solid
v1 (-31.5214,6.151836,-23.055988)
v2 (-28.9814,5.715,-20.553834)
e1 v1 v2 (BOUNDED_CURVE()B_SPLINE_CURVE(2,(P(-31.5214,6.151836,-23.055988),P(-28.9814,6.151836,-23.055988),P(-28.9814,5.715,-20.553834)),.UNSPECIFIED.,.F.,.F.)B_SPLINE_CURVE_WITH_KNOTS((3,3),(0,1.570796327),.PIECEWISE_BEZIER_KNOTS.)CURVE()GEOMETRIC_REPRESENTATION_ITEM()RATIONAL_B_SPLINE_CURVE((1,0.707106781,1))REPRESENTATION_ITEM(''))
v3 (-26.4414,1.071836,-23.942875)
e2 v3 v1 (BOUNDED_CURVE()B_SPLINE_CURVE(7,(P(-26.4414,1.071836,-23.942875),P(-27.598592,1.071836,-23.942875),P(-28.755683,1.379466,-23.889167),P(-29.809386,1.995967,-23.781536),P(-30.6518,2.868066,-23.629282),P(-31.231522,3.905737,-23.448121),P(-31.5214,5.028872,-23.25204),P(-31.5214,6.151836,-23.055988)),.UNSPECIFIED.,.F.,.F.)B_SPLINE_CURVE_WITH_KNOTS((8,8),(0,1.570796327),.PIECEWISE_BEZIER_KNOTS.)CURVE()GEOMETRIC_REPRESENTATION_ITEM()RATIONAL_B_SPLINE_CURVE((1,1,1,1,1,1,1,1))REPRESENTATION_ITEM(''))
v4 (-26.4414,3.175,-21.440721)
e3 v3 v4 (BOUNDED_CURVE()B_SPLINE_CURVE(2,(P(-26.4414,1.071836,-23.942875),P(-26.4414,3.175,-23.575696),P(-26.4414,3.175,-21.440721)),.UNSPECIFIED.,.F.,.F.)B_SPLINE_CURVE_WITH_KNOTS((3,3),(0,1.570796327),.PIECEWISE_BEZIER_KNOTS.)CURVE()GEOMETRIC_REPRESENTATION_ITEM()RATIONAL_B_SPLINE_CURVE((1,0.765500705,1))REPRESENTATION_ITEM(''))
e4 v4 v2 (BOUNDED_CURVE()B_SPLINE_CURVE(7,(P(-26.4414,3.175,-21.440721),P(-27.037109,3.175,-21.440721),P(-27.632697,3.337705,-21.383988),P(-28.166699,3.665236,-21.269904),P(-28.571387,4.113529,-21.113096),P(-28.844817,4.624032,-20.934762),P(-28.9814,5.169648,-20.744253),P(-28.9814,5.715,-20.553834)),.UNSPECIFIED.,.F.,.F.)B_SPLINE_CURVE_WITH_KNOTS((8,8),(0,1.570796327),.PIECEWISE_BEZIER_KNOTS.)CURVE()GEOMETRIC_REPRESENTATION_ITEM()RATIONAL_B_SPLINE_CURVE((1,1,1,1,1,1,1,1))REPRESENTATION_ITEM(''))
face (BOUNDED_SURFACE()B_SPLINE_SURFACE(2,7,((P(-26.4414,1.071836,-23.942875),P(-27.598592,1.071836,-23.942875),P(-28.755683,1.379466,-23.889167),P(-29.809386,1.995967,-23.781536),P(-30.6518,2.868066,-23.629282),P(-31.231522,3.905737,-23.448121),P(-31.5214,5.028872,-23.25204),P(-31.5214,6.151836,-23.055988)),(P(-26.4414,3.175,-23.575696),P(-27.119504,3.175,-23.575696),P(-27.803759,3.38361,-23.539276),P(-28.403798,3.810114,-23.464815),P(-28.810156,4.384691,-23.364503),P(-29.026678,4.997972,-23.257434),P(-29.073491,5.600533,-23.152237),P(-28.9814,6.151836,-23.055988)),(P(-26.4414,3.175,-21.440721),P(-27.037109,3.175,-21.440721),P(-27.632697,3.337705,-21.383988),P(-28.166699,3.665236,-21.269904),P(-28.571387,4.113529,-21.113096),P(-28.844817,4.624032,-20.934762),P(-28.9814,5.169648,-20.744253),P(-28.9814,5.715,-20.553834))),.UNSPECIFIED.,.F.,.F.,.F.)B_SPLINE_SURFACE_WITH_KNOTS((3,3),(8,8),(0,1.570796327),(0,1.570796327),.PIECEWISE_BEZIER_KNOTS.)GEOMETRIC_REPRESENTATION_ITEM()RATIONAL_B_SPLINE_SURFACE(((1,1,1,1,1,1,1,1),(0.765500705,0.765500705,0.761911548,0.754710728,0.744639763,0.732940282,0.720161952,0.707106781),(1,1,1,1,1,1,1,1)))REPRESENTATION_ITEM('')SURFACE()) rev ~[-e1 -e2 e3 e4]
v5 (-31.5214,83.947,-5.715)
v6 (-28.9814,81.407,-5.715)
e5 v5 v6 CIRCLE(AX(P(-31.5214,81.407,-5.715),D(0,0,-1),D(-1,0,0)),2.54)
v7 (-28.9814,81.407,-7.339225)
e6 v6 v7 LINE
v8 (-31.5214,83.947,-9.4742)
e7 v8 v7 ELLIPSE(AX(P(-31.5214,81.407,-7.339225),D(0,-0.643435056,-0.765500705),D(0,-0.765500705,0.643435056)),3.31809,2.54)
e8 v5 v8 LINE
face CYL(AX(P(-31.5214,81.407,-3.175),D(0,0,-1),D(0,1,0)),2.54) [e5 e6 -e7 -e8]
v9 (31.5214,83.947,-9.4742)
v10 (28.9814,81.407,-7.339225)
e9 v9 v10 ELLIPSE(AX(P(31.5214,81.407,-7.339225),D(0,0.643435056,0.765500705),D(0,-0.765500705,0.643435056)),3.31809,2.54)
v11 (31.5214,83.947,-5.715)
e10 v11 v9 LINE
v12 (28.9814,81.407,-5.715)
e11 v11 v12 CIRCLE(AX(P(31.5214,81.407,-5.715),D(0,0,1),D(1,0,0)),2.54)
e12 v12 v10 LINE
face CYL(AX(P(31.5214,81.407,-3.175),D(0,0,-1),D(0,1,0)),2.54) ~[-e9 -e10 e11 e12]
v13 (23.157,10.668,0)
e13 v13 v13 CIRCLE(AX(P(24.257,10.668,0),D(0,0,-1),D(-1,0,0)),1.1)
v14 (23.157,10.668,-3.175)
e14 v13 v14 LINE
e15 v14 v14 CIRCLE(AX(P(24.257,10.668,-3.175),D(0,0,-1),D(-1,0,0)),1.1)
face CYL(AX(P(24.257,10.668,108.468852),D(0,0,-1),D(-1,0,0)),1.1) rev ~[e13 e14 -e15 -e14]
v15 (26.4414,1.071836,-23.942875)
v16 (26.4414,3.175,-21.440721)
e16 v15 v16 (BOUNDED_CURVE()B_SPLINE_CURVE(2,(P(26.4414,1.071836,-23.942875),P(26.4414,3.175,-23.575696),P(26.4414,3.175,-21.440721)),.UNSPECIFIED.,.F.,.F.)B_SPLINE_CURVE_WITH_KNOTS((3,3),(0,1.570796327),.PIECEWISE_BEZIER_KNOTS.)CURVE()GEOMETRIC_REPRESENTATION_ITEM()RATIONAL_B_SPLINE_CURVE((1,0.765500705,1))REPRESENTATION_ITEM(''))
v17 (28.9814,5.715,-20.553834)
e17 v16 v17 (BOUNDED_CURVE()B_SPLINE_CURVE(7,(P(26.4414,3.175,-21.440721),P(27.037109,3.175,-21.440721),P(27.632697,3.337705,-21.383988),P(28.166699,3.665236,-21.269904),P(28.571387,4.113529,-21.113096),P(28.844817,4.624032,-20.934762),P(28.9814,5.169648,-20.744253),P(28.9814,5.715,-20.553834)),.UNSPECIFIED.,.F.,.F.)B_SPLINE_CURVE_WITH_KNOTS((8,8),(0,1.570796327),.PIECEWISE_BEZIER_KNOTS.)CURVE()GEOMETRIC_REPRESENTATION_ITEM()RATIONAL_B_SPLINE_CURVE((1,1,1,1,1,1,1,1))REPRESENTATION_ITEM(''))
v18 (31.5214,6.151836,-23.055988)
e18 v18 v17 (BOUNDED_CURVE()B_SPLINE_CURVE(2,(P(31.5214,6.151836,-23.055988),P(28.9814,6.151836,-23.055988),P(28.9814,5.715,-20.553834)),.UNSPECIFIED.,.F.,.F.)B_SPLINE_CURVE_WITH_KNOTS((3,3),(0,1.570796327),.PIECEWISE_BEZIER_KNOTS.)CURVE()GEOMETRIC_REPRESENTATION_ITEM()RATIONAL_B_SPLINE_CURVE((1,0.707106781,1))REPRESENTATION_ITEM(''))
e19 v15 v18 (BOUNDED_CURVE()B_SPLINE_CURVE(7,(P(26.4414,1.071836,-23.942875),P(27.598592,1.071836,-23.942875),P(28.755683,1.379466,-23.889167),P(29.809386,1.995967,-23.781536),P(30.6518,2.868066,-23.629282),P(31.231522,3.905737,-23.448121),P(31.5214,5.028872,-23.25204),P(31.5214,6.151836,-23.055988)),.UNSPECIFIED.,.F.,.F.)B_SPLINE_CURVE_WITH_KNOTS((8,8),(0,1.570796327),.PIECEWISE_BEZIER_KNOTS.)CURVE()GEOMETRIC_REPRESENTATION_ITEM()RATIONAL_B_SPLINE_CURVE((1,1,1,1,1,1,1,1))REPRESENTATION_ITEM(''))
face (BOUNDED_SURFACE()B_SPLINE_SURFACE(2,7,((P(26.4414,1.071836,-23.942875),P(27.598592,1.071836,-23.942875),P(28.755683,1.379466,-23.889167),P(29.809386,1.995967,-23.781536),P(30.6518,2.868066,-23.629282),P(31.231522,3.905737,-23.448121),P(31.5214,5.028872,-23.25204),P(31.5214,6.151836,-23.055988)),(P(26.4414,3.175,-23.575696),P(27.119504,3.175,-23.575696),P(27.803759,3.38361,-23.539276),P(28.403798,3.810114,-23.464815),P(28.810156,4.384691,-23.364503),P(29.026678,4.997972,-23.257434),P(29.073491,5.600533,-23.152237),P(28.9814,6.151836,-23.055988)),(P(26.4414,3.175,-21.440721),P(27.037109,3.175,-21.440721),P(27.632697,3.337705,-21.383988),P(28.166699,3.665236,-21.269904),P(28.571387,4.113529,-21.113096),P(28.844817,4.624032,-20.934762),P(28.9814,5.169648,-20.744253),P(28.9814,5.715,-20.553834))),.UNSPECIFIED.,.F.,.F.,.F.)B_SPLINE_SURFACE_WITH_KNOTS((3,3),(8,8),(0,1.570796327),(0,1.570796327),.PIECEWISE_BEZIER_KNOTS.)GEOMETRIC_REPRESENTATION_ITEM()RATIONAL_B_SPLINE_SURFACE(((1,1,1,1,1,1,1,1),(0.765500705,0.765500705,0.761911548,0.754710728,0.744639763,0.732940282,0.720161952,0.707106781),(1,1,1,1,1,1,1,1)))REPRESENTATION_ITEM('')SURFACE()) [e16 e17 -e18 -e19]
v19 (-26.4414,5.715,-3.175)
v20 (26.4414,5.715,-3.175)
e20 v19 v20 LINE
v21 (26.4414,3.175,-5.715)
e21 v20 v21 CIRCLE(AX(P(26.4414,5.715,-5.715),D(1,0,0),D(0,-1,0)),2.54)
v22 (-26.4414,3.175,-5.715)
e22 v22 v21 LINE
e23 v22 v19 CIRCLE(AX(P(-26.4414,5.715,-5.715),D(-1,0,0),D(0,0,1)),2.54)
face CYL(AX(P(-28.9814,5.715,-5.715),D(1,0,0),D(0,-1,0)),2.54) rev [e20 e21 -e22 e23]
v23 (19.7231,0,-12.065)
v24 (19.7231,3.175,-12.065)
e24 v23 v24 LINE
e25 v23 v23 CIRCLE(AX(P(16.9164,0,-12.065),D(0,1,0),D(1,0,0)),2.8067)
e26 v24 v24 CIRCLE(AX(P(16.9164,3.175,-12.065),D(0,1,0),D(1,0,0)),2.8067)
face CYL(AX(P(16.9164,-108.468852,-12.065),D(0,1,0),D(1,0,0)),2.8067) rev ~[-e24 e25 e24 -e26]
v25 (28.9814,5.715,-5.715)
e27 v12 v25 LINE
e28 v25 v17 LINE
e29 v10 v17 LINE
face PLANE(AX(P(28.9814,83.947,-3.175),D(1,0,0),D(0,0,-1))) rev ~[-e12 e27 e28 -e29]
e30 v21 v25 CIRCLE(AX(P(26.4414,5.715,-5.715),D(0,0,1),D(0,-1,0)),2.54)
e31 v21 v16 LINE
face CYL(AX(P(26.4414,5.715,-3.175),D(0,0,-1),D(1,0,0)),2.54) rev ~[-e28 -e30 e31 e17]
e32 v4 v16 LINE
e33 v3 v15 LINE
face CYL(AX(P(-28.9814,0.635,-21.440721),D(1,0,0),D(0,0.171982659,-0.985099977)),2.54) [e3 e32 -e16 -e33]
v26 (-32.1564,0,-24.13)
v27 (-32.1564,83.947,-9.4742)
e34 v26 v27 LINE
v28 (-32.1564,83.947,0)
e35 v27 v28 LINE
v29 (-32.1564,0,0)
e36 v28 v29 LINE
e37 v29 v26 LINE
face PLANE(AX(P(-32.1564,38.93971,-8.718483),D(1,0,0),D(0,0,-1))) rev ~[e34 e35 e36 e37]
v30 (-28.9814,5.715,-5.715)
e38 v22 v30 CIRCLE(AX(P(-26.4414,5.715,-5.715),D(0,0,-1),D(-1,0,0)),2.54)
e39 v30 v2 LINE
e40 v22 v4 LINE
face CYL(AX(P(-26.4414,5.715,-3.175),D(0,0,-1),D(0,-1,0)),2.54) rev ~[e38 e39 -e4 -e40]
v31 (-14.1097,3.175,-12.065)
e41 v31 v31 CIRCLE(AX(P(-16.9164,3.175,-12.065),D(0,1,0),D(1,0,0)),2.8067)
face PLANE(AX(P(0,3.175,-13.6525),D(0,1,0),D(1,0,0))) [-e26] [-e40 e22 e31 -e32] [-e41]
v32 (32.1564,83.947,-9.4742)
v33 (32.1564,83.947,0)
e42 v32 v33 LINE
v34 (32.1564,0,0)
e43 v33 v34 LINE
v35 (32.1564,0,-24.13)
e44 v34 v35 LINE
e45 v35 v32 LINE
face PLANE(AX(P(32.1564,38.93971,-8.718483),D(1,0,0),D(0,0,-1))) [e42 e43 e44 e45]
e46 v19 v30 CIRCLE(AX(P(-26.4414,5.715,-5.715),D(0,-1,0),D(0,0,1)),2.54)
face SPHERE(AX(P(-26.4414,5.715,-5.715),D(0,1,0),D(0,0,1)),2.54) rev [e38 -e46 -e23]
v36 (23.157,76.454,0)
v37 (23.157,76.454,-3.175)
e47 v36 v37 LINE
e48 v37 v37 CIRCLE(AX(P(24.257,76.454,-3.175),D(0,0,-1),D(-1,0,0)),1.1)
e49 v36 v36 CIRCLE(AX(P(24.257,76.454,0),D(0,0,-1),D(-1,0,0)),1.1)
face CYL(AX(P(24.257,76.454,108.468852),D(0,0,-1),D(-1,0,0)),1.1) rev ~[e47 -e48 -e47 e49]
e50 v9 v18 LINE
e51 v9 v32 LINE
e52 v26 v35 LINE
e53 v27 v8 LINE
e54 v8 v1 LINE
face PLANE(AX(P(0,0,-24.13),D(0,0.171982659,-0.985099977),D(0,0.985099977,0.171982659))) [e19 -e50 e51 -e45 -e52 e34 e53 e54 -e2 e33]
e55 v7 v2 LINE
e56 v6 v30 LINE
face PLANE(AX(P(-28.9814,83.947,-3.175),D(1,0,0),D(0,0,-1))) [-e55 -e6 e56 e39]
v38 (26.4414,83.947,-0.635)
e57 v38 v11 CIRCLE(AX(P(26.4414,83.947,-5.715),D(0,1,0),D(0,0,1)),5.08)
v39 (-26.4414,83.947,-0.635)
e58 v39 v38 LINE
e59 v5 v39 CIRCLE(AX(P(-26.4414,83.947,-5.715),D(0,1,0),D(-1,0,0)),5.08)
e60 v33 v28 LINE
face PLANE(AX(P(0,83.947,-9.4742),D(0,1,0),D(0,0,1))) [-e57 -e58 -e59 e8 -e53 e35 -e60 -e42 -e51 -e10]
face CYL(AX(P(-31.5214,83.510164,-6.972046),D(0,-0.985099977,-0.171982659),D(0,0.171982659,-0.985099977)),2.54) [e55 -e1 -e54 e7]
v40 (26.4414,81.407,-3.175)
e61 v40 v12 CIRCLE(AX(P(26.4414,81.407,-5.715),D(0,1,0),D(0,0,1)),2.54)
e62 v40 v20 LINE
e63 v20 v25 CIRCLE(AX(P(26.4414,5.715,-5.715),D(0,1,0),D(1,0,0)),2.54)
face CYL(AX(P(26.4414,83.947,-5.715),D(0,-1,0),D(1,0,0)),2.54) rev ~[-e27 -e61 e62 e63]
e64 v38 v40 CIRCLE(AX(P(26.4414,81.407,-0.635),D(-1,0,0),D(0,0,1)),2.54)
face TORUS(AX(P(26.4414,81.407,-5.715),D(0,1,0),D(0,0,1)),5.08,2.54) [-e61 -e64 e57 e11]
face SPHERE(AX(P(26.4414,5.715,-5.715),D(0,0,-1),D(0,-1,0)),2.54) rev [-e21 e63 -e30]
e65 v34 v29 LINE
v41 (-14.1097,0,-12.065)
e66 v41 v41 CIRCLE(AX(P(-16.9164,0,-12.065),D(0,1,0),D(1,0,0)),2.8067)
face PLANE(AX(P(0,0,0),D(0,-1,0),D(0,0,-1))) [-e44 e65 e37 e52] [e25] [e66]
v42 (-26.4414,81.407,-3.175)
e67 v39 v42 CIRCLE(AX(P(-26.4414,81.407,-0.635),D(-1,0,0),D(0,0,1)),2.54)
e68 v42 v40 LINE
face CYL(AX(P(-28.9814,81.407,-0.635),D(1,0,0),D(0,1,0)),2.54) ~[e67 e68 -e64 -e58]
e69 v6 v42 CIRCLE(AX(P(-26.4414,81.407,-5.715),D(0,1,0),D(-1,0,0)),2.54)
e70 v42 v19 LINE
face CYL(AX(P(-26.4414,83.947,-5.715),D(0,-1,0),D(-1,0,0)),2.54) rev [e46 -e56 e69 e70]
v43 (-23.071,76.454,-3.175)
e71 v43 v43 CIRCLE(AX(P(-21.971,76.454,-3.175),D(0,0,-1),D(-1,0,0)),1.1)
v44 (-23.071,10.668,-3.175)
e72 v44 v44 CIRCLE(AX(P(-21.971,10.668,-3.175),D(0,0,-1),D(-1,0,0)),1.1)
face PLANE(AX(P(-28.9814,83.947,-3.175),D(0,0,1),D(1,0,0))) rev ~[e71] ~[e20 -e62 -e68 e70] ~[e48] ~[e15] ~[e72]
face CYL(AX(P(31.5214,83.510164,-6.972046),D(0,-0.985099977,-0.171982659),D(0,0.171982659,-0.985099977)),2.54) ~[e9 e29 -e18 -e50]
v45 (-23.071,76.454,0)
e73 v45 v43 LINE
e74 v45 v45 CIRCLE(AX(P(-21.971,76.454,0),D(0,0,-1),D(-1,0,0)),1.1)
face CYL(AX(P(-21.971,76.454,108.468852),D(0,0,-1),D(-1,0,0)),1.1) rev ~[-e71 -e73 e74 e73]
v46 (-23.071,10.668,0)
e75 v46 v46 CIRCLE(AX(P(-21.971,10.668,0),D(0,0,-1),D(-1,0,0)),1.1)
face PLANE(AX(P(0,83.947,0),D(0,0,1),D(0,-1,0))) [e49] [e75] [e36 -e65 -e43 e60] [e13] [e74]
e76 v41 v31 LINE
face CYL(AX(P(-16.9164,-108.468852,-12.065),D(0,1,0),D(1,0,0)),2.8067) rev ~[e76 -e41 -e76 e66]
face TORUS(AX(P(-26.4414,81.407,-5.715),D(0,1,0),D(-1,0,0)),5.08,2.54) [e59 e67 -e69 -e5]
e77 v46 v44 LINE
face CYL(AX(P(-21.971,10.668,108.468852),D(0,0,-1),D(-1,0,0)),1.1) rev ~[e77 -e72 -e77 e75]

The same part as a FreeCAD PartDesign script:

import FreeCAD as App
import Part
import Sketcher
from FreeCAD import Vector
Q = App.Units.Quantity


def edges_at(feature, points):
    """Names of the edges that pass closest to the given points."""
    edges = feature.Shape.Edges
    near = lambda p: min(range(len(edges)), key=lambda i: edges[i].distToShape(Part.Vertex(*p))[0])
    return sorted({f"Edge{near(p) + 1}" for p in points})


def add_polygon(sketch, points):
    """Adds a closed chain of lines whose ends are joined by coincident constraints."""
    first, n = sketch.GeometryCount, len(points)
    for a, b in zip(points, points[1:] + points[:1]):
        sketch.addGeometry(Part.LineSegment(App.Vector(*a, 0), App.Vector(*b, 0)), False)
    for i in range(n):
        sketch.addConstraint(Sketcher.Constraint("Coincident", first + i, 2, first + (i + 1) % n, 1))

doc = App.newDocument("Part")
body = doc.addObject("PartDesign::Body", "Body")

# Sketch on YZ plane
sketch1 = doc.addObject("Sketcher::SketchObject", "Sketch")
body.addObject(sketch1)
sketch1.AttachmentSupport = (doc.YZ_Plane, [""])
sketch1.MapMode = "FlatFace"
add_polygon(sketch1, [(0, 0), (0, -24), (84, -9), (84, 0)])  # lines 0-3
sketch1.addConstraint([
    Sketcher.Constraint("Vertical", 0),
    Sketcher.Constraint("Vertical", 2),
    Sketcher.Constraint("Horizontal", 3),
    Sketcher.Constraint("Coincident", 3, 2, -1, 1),
    Sketcher.Constraint("DistanceY", 0, 2, 0, 1, Q("0.95 in")),
    Sketcher.Constraint("DistanceX", 3, 2, 3, 1, Q("3.305 in")),
    Sketcher.Constraint("DistanceY", 2, 1, 2, 2, Q("0.373 in")),
])
pad1 = doc.addObject("PartDesign::Pad", "Pad")
body.addObject(pad1)
pad1.Profile = sketch1
pad1.Length = Q("2.532 in")
pad1.Midplane = True

# Sketch on XZ plane
sketch2 = doc.addObject("Sketcher::SketchObject", "Sketch001")
body.addObject(sketch2)
sketch2.AttachmentSupport = (doc.XZ_Plane, [""])
sketch2.MapMode = "FlatFace"
sketch2.AttachmentOffset = App.Placement(Vector(0, 0, -3.305 * 25.4), App.Rotation())
add_polygon(sketch2, [(-29, -24), (-29, -3), (29, -3), (29, -24)])  # lines 0-3
sketch2.addConstraint([
    Sketcher.Constraint("Vertical", 0),
    Sketcher.Constraint("Horizontal", 1),
    Sketcher.Constraint("Vertical", 2),
    Sketcher.Constraint("Horizontal", 3),
    Sketcher.Constraint("DistanceX", 1, 1, 1, 2, Q("2.282 in")),
    Sketcher.Constraint("DistanceY", 0, 1, 0, 2, Q("0.825 in")),
    Sketcher.Constraint("DistanceY", 2, 2, -1, 1, Q("0.95 in")),
    Sketcher.Constraint("DistanceX", 0, 2, -1, 1, Q("1.141 in")),
])
pocket1 = doc.addObject("PartDesign::Pocket", "Pocket")
body.addObject(pocket1)
pocket1.Profile = sketch2
pocket1.Length = Q("3.18 in")
pocket1.Reversed = True

# Sketch on XY plane
sketch3 = doc.addObject("Sketcher::SketchObject", "Sketch002")
body.addObject(sketch3)
sketch3.AttachmentSupport = (doc.XY_Plane, [""])
sketch3.MapMode = "FlatFace"
sketch3.addGeometry([
    Part.Circle(Vector(-22, 76.5, 0), Vector(0, 0, 1), 1.1),
    Part.Circle(Vector(24.3, 76.5, 0), Vector(0, 0, 1), 1.1),
    Part.Circle(Vector(24.3, 10.7, 0), Vector(0, 0, 1), 1.1),
    Part.Circle(Vector(-22, 10.7, 0), Vector(0, 0, 1), 1.1),
], False)
sketch3.addConstraint([
    Sketcher.Constraint("Equal", 0, 1),
    Sketcher.Constraint("Equal", 1, 2),
    Sketcher.Constraint("Equal", 2, 3),
    Sketcher.Constraint("Horizontal", 0, 3, 1, 3),
    Sketcher.Constraint("Horizontal", 2, 3, 3, 3),
    Sketcher.Constraint("Vertical", 1, 3, 2, 3),
    Sketcher.Constraint("Vertical", 0, 3, 3, 3),
    Sketcher.Constraint("Diameter", 0, Q("2.2 mm")),
    Sketcher.Constraint("DistanceY", -1, 1, 0, 3, Q("3.01 in")),
    Sketcher.Constraint("DistanceY", -1, 1, 2, 3, Q("0.42 in")),
    Sketcher.Constraint("DistanceX", 0, 3, 1, 3, Q("1.82 in")),
    Sketcher.Constraint("DistanceX", 0, 3, -1, 1, Q("0.865 in")),
])
doc.recompute()
hole = doc.addObject("PartDesign::Hole", "Hole")
body.addObject(hole)
hole.Profile = sketch3
hole.ThreadType = "None"
hole.Diameter = 2.2
hole.DepthType = "ThroughAll"

# Sketch on XZ plane
sketch4 = doc.addObject("Sketcher::SketchObject", "Sketch003")
body.addObject(sketch4)
sketch4.AttachmentSupport = (doc.XZ_Plane, [""])
sketch4.MapMode = "FlatFace"
sketch4.addGeometry([
    Part.Circle(Vector(16.9, -12.1, 0), Vector(0, 0, 1), 2.8),
    Part.Circle(Vector(-16.9, -12.1, 0), Vector(0, 0, 1), 2.8),
], False)
sketch4.addConstraint([
    Sketcher.Constraint("Equal", 0, 1),
    Sketcher.Constraint("Symmetric", 0, 3, 1, 3, -2),
    Sketcher.Constraint("Diameter", 0, Q("0.221 in")),
    Sketcher.Constraint("DistanceX", -1, 1, 0, 3, Q("0.666 in")),
    Sketcher.Constraint("DistanceY", 0, 3, -1, 1, Q("0.475 in")),
])
doc.recompute()
hole2 = doc.addObject("PartDesign::Hole", "Hole001")
body.addObject(hole2)
hole2.Profile = sketch4
hole2.ThreadType = "None"
hole2.Diameter = Q("0.221 in")
hole2.DepthType = "ThroughAll"
doc.recompute()

fillet = doc.addObject("PartDesign::Fillet", "Fillet")
body.addObject(fillet)
fillet.Base = (hole2, edges_at(hole2, [
    (0, 3.175, -23.576),
    (28.981, 43.561, -16.525),
    (-28.981, 43.561, -16.525),
    (-28.981, 43.561, -3.175),
    (-28.981, 83.947, -6.325),
    (0, 83.947, -3.175),
    (28.981, 83.947, -6.325),
    (28.981, 3.175, -13.375),
    (0, 3.175, -3.175),
    (-28.981, 3.175, -13.375),
    (28.981, 43.561, -3.175),
]))
fillet.Radius = Q("0.1 in")

doc.recompute()
